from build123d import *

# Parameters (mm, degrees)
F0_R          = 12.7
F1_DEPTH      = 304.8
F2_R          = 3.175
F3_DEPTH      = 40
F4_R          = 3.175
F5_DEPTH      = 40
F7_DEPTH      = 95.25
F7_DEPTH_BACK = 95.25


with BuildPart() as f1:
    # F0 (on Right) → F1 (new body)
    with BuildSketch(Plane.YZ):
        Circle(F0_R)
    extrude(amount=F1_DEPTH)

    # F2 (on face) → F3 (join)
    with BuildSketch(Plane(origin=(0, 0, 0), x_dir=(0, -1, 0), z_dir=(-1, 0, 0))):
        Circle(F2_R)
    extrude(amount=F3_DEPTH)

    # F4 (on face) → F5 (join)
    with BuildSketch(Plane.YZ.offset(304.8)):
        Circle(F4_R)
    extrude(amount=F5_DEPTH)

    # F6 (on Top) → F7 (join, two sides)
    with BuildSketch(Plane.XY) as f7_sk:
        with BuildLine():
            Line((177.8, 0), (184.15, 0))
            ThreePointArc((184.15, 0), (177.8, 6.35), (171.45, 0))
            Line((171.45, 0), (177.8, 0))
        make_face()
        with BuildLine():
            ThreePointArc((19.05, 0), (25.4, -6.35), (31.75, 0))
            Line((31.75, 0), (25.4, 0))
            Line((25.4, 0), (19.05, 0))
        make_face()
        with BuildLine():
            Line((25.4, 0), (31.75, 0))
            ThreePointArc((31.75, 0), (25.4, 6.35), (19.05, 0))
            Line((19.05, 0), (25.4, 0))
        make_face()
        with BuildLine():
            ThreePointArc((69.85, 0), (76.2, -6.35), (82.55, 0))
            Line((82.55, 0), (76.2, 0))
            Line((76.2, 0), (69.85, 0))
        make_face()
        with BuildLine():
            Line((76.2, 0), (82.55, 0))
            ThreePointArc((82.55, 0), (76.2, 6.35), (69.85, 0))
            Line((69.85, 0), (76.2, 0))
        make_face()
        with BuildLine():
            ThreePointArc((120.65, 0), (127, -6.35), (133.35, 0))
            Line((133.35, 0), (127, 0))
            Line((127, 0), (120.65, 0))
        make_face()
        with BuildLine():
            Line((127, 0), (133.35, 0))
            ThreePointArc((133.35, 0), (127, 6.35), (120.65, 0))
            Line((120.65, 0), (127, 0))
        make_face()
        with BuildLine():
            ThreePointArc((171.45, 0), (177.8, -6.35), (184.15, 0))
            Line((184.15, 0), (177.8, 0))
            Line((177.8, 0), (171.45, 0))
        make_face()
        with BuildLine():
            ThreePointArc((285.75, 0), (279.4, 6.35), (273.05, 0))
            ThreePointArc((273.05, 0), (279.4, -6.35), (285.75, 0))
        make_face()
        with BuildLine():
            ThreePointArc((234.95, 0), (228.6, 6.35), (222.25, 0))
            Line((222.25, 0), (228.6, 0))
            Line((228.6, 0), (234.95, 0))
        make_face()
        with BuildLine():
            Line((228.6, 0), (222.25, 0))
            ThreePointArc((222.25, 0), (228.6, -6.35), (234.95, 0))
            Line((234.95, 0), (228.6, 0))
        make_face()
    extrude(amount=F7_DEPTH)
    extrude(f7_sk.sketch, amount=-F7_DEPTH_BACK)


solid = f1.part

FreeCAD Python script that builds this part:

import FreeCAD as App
import Part
import Sketcher
Q = App.Units.Quantity

doc = App.newDocument("Part")
body = doc.addObject("PartDesign::Body", "Body")

sketch1 = body.newObject("Sketcher::SketchObject", "Sketch")
sketch1.AttachmentSupport = (doc.getObject("YZ_Plane"), [""])
sketch1.MapMode = "FlatFace"
sketch1.addGeometry(Part.Circle(App.Vector(0, 0, 0), App.Vector(0, 0, 1), 13), False)
sketch1.addConstraint([
    Sketcher.Constraint("Coincident", 0, 3, -1, 1),
    Sketcher.Constraint("Diameter", 0, Q("1 in")),
])
pad1 = body.newObject("PartDesign::Pad", "Pad")
pad1.Profile = sketch1
pad1.Length = Q("12 in")

sketch2 = body.newObject("Sketcher::SketchObject", "Sketch001")
sketch2.AttachmentSupport = (doc.getObject("YZ_Plane"), [""])
sketch2.MapMode = "FlatFace"
sketch2.addGeometry(Part.Circle(App.Vector(0, 0, 0), App.Vector(0, 0, 1), 3.2), False)
sketch2.addConstraint([
    Sketcher.Constraint("Coincident", 0, 3, -1, 1),
    Sketcher.Constraint("Diameter", 0, Q("0.25 in")),
])
pad2 = body.newObject("PartDesign::Pad", "Pad001")
pad2.Profile = sketch2
pad2.Length = 40
pad2.Reversed = True

sketch3 = body.newObject("Sketcher::SketchObject", "Sketch002")
sketch3.AttachmentSupport = (doc.getObject("YZ_Plane"), [""])
sketch3.MapMode = "FlatFace"
sketch3.AttachmentOffset = App.Placement(App.Vector(0, 0, 12 * 25.4), App.Rotation())
sketch3.addGeometry(Part.Circle(App.Vector(0, 0, 0), App.Vector(0, 0, 1), 3.2), False)
sketch3.addConstraint([
    Sketcher.Constraint("Coincident", 0, 3, -1, 1),
    Sketcher.Constraint("Diameter", 0, Q("0.25 in")),
])
pad3 = body.newObject("PartDesign::Pad", "Pad002")
pad3.Profile = sketch3
pad3.Length = 40

sketch4 = body.newObject("Sketcher::SketchObject", "Sketch003")
sketch4.AttachmentSupport = (doc.getObject("XY_Plane"), [""])
sketch4.MapMode = "FlatFace"
sketch4.addGeometry([
    Part.Circle(App.Vector(178, 0, 0), App.Vector(0, 0, 1), 6),
    Part.Circle(App.Vector(25, 0, 0), App.Vector(0, 0, 1), 6),
    Part.Circle(App.Vector(76, 0, 0), App.Vector(0, 0, 1), 6),
    Part.Circle(App.Vector(127, 0, 0), App.Vector(0, 0, 1), 6),
    Part.Circle(App.Vector(279, 0, 0), App.Vector(0, 0, 1), 6),
    Part.Circle(App.Vector(229, 0, 0), App.Vector(0, 0, 1), 6),
], False)
sketch4.addConstraint([
    Sketcher.Constraint("Equal", 0, 1),
    Sketcher.Constraint("Equal", 1, 2),
    Sketcher.Constraint("Equal", 2, 3),
    Sketcher.Constraint("Equal", 3, 4),
    Sketcher.Constraint("Equal", 4, 5),
    Sketcher.Constraint("PointOnObject", 0, 3, -1),
    Sketcher.Constraint("PointOnObject", 1, 3, -1),
    Sketcher.Constraint("PointOnObject", 2, 3, -1),
    Sketcher.Constraint("PointOnObject", 3, 3, -1),
    Sketcher.Constraint("PointOnObject", 4, 3, -1),
    Sketcher.Constraint("PointOnObject", 5, 3, -1),
    Sketcher.Constraint("Diameter", 0, Q("0.5 in")),
    Sketcher.Constraint("DistanceX", -1, 1, 0, 3, Q("7 in")),
    Sketcher.Constraint("DistanceX", -1, 1, 1, 3, Q("1 in")),
    Sketcher.Constraint("DistanceX", -1, 1, 2, 3, Q("3 in")),
    Sketcher.Constraint("DistanceX", -1, 1, 3, 3, Q("5 in")),
    Sketcher.Constraint("DistanceX", -1, 1, 4, 3, Q("11 in")),
    Sketcher.Constraint("DistanceX", -1, 1, 5, 3, Q("9 in")),
])
pad4 = body.newObject("PartDesign::Pad", "Pad003")
pad4.Profile = sketch4
pad4.Type = "TwoLengths"
pad4.Length = Q("3.75 in")
pad4.Length2 = Q("3.75 in")

doc.recompute()
